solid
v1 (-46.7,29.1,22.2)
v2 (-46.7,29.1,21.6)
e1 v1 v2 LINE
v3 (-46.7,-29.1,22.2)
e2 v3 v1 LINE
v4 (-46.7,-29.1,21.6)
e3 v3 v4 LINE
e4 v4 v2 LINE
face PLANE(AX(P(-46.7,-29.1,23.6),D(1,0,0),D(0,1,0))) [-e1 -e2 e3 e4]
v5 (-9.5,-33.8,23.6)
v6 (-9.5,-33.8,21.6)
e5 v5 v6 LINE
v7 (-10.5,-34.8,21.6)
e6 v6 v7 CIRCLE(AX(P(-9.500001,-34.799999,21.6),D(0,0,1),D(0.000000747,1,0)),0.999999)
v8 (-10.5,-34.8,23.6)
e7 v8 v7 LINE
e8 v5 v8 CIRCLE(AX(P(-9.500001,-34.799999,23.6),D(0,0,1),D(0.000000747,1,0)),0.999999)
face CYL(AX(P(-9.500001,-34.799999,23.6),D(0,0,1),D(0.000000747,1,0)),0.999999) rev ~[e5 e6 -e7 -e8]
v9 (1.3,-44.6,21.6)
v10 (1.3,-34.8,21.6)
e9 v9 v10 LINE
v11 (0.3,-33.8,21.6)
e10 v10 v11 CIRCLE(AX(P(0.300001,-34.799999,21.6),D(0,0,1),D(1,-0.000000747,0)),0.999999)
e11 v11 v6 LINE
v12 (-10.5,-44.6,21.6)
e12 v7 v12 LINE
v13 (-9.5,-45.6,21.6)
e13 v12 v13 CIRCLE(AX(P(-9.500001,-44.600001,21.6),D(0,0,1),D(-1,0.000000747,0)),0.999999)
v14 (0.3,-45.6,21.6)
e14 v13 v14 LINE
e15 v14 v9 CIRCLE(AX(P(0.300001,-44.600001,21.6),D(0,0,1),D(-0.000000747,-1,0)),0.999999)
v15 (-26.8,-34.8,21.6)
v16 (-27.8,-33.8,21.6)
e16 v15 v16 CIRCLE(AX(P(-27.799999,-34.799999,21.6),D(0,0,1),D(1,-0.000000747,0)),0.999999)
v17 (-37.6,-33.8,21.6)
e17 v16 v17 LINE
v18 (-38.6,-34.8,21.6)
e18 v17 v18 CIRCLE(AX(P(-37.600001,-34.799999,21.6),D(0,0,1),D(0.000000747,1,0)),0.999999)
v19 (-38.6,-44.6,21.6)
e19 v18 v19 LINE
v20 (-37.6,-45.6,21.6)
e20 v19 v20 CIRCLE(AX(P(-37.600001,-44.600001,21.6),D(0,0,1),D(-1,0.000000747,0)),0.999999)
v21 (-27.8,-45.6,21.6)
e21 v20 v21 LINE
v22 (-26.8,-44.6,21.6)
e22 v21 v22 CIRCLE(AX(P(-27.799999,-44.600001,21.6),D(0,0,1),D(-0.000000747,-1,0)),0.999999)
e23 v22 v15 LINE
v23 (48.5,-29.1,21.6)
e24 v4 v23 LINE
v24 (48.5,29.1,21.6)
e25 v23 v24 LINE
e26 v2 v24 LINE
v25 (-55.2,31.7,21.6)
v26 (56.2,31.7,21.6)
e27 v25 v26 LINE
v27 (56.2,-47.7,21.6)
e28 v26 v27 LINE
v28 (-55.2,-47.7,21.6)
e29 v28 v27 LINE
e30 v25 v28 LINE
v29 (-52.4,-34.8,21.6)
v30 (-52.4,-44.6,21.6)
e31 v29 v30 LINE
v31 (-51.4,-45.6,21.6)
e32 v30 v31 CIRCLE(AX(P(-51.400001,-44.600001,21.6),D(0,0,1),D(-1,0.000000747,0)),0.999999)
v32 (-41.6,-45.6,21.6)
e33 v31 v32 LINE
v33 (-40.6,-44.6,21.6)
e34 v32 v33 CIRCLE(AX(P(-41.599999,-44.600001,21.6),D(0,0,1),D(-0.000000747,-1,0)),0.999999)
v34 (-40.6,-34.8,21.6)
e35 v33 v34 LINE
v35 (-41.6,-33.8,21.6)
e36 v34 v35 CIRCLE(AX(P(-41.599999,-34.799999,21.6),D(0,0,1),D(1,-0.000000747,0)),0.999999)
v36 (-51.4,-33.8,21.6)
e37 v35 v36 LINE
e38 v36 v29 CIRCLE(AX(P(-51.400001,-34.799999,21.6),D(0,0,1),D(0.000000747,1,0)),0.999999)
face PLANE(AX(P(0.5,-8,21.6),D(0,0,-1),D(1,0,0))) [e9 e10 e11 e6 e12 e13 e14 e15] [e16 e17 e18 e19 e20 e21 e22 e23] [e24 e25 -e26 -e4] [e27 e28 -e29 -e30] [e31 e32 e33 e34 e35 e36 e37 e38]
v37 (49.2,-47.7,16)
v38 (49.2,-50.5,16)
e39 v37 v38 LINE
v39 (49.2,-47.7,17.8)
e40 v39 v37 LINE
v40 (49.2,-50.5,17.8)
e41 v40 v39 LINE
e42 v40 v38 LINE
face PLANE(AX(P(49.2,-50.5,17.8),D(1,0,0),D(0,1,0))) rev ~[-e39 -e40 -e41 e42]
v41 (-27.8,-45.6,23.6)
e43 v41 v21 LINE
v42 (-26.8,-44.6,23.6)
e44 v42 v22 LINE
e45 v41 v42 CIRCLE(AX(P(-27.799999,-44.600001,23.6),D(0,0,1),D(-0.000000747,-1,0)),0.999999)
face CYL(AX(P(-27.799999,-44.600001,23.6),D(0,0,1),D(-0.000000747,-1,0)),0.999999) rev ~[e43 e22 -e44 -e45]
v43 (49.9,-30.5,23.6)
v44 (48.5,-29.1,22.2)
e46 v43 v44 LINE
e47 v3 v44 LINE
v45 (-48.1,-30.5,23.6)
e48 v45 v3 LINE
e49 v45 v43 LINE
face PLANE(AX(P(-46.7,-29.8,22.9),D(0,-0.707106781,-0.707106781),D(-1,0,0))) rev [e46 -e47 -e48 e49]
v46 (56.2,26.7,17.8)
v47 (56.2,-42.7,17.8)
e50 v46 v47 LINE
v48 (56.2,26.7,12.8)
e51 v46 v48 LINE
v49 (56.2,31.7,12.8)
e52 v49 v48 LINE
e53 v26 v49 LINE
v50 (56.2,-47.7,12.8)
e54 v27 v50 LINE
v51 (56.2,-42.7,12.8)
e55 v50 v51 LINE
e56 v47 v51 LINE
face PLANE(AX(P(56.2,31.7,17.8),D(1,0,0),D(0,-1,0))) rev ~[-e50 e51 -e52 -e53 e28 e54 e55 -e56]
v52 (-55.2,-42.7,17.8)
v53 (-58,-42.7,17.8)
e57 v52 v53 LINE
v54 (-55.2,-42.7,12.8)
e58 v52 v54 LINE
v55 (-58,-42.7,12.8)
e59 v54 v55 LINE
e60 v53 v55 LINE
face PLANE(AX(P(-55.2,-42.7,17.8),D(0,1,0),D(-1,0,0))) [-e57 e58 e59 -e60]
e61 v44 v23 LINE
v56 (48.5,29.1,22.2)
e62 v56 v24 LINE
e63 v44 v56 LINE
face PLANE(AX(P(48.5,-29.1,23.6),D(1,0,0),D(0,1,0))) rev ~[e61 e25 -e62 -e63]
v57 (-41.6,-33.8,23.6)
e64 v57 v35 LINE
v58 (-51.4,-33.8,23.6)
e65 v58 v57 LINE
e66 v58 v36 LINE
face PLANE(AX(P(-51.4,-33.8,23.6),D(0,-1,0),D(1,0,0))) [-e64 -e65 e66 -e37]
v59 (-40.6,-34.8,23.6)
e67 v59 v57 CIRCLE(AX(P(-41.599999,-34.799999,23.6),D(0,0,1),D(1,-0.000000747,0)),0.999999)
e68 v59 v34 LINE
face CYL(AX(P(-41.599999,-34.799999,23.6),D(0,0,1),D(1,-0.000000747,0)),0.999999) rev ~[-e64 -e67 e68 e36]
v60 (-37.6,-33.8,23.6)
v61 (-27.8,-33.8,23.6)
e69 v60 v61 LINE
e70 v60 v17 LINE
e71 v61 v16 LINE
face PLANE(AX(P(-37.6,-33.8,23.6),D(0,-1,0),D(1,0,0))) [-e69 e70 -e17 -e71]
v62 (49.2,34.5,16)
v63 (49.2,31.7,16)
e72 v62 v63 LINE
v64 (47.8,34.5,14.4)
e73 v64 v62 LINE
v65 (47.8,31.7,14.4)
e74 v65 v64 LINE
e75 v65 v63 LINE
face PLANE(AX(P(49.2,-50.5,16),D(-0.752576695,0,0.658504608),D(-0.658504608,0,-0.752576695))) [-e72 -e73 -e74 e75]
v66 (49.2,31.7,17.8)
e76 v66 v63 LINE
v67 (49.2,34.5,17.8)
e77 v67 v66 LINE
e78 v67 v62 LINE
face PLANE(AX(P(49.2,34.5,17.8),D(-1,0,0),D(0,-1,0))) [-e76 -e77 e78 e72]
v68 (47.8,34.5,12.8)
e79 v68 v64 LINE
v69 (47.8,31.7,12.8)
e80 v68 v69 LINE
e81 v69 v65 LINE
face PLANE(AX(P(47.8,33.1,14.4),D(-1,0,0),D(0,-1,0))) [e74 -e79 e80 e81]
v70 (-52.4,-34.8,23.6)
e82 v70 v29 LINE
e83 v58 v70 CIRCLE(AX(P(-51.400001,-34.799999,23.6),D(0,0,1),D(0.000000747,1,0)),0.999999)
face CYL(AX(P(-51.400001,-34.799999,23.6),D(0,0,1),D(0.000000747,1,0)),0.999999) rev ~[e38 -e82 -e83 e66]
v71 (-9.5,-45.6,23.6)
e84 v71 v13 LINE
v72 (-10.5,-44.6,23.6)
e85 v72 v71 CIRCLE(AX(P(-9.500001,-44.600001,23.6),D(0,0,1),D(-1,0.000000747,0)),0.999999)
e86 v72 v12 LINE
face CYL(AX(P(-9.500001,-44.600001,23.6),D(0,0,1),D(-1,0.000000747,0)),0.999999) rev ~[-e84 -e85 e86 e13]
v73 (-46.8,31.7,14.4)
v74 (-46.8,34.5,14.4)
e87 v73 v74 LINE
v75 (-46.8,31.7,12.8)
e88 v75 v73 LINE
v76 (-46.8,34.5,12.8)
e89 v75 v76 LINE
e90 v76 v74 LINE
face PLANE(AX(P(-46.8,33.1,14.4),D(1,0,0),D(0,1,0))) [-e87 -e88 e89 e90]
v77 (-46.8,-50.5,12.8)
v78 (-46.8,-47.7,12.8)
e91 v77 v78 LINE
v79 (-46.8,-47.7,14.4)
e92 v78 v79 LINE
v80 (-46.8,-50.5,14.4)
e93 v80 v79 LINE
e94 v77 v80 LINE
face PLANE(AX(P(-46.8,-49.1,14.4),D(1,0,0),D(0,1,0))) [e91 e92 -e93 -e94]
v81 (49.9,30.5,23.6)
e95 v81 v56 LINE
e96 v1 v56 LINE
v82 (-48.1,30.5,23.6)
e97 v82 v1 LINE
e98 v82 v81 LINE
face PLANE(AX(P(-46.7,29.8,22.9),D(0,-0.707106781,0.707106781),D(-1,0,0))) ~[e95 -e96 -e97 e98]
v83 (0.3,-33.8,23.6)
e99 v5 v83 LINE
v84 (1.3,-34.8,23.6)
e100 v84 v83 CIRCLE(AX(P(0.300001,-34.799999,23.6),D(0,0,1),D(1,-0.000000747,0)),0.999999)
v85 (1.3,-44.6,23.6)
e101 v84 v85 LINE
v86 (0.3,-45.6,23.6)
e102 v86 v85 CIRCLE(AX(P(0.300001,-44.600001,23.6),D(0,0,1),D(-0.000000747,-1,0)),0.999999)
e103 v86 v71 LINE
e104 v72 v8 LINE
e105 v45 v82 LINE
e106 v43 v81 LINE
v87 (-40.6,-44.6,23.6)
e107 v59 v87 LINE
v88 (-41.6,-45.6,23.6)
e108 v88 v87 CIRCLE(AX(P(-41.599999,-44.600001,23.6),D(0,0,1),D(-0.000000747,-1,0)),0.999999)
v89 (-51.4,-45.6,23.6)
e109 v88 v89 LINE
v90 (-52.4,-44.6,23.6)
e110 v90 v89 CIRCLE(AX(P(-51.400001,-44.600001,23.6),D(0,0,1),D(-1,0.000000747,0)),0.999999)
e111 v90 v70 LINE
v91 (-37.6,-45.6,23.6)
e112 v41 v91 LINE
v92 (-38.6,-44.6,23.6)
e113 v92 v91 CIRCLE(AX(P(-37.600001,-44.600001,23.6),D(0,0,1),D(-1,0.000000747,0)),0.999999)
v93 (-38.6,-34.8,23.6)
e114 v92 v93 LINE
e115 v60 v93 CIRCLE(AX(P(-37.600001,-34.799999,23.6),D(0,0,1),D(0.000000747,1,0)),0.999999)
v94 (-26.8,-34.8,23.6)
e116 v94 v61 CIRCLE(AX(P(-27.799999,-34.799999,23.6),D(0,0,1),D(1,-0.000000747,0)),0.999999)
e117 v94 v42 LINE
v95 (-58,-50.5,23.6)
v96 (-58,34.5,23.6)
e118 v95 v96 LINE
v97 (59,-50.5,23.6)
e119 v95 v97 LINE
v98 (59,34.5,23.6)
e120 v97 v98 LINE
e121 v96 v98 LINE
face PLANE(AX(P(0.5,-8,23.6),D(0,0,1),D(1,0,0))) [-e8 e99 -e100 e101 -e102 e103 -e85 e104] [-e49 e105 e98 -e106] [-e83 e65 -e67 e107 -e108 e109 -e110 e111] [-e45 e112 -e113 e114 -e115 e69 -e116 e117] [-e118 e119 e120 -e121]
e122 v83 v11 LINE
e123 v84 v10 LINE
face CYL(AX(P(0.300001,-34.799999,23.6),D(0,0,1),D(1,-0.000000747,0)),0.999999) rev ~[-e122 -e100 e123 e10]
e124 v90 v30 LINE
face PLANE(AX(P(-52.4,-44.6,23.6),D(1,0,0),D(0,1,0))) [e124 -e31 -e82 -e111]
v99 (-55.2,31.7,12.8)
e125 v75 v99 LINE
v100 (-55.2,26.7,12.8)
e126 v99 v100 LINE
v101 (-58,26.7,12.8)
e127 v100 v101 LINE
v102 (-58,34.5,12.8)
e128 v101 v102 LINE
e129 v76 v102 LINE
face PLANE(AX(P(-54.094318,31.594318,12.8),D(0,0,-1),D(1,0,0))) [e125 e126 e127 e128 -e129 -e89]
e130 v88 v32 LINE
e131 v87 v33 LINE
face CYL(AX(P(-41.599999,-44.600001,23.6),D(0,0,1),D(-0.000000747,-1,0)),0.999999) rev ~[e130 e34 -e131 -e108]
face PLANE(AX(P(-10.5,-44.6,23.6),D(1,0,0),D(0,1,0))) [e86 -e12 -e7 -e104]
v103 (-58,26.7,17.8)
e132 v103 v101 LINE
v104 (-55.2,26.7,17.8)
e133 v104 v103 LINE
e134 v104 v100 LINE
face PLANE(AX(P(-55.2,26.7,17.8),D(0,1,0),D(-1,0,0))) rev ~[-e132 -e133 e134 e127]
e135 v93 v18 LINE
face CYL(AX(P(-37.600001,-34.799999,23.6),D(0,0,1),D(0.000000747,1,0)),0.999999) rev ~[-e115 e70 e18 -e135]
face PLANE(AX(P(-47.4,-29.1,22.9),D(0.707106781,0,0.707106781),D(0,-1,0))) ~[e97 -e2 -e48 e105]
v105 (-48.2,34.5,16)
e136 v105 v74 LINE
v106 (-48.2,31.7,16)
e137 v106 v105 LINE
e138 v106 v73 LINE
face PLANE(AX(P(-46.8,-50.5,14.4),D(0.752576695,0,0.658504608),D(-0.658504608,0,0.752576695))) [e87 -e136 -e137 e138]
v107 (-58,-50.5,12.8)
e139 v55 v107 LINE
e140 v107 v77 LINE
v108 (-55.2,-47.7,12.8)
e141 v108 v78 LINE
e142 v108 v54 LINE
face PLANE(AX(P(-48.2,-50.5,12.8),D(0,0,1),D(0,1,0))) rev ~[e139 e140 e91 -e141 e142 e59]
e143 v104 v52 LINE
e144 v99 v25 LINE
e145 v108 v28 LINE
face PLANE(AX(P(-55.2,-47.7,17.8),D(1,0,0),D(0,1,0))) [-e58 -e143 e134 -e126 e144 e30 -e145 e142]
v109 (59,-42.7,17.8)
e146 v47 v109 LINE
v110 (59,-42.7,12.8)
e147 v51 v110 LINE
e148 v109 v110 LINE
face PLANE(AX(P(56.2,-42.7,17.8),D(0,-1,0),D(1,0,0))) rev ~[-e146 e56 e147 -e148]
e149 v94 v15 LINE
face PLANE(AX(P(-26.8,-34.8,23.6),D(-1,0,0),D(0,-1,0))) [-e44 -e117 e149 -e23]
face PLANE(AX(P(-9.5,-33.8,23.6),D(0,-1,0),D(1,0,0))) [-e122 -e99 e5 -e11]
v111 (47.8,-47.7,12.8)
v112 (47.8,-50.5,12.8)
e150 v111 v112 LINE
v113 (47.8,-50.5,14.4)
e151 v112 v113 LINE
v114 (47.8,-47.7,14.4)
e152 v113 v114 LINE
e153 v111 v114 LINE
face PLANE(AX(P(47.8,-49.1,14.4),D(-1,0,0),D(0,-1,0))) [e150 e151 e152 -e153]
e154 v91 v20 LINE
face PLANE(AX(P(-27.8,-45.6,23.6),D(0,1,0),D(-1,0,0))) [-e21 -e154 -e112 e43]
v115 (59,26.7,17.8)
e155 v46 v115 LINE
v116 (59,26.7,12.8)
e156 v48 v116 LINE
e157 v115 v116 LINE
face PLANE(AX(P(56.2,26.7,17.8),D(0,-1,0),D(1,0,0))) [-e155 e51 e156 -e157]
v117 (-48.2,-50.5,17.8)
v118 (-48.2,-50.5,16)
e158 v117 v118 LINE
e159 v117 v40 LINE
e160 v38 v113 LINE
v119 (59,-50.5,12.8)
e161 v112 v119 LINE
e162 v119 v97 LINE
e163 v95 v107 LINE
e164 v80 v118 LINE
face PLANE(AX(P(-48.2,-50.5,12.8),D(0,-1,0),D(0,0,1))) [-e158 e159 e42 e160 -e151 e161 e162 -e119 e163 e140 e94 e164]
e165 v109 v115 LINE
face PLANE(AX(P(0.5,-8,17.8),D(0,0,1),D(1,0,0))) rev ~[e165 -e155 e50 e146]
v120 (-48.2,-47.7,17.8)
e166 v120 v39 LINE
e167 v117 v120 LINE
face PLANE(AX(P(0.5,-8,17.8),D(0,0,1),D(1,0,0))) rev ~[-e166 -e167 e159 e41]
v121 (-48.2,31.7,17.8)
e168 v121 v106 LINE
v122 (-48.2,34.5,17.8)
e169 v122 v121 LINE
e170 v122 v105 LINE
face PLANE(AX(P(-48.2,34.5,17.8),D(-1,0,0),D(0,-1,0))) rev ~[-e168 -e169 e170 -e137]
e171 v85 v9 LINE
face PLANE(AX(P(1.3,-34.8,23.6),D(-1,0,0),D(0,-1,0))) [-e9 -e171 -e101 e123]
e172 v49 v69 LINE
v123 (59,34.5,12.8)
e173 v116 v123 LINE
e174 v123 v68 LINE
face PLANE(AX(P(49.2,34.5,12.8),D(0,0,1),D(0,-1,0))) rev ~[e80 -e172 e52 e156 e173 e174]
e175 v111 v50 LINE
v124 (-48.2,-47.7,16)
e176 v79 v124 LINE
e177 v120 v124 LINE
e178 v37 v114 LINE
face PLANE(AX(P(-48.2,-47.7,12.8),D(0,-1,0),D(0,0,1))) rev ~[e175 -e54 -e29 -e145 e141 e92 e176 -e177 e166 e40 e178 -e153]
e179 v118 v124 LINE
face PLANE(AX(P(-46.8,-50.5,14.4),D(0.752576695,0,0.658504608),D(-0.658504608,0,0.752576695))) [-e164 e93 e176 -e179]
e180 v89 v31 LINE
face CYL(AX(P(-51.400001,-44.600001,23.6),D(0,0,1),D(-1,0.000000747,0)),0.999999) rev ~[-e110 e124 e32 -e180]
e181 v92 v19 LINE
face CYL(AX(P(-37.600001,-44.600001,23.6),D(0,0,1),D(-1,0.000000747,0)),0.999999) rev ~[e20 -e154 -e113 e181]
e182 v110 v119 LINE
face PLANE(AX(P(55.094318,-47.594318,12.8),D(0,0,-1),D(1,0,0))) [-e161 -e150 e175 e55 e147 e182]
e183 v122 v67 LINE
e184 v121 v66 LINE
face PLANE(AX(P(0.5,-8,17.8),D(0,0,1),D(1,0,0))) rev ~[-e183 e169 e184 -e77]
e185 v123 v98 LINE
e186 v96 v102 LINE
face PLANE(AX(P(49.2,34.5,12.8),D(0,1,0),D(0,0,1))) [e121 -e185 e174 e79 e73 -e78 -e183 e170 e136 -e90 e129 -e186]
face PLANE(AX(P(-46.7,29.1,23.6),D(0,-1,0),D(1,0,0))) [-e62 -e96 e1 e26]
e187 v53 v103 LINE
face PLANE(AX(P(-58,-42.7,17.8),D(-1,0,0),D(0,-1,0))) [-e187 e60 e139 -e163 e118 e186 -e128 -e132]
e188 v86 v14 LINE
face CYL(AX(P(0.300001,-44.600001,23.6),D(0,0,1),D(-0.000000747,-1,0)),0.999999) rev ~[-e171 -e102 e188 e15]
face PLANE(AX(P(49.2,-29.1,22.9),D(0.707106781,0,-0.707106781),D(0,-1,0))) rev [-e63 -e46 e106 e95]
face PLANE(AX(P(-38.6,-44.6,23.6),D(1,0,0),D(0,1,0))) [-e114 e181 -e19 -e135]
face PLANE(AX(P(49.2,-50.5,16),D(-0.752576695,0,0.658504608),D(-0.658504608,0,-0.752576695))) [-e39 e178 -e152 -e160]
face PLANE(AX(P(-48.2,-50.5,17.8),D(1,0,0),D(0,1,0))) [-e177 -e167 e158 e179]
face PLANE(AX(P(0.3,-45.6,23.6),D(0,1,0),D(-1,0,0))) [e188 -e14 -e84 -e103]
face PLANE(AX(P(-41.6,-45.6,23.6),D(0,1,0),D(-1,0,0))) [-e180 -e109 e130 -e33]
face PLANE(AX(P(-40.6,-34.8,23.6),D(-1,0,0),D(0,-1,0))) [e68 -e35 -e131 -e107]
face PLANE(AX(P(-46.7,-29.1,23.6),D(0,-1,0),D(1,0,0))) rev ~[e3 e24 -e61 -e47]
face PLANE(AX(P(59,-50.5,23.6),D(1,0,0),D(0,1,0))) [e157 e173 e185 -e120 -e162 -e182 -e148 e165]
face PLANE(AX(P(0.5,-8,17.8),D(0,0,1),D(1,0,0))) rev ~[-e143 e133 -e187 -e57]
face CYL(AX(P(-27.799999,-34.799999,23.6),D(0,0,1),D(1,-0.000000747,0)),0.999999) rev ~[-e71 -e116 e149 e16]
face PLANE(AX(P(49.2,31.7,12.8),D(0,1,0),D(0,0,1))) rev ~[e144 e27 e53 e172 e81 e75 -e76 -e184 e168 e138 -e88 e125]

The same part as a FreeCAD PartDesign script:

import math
import FreeCAD as App
import Part
import Sketcher

V = App.Vector
Q = App.Units.Quantity


def edges_at(feature, points):
    """Names of the edges that pass closest to the given points."""
    edges = feature.Shape.Edges
    near = lambda p: min(range(len(edges)), key=lambda i: edges[i].distToShape(Part.Vertex(*p))[0])
    return sorted({f"Edge{near(p) + 1}" for p in points})

doc = App.newDocument("Part")
body = doc.addObject("PartDesign::Body", "Body")

# Sketch on XY plane
sketch1 = doc.addObject("Sketcher::SketchObject", "Sketch")
body.addObject(sketch1)
sketch1.AttachmentSupport = (doc.XY_Plane, [""])
sketch1.MapMode = "FlatFace"
sketch1.AttachmentOffset = App.Placement(V(0, 0, 23.6), App.Rotation())
sketch1.addGeometry(Part.LineSegment(V(-58, 34, 0), V(-58, -50, 0)), False)
sketch1.addGeometry(Part.LineSegment(V(-58, -50, 0), V(59, -50, 0)), False)
sketch1.addGeometry(Part.LineSegment(V(59, -50, 0), V(59, 34, 0)), False)
sketch1.addGeometry(Part.LineSegment(V(59, 34, 0), V(-58, 34, 0)), False)
sketch1.addConstraint(Sketcher.Constraint("Coincident", 0, 2, 1, 1))
sketch1.addConstraint(Sketcher.Constraint("Coincident", 1, 2, 2, 1))
sketch1.addConstraint(Sketcher.Constraint("Coincident", 2, 2, 3, 1))
sketch1.addConstraint(Sketcher.Constraint("Coincident", 3, 2, 0, 1))
sketch1.addConstraint(Sketcher.Constraint("Vertical", 0))
sketch1.addConstraint(Sketcher.Constraint("Horizontal", 1))
sketch1.addConstraint(Sketcher.Constraint("Vertical", 2))
sketch1.addConstraint(Sketcher.Constraint("Horizontal", 3))
sketch1.addConstraint(Sketcher.Constraint("DistanceX", 1, 1, 1, 2, Q("117 mm")))
sketch1.addConstraint(Sketcher.Constraint("DistanceY", 0, 2, 0, 1, Q("85 mm")))
sketch1.addConstraint(Sketcher.Constraint("DistanceX", 0, 2, -1, 1, Q("58 mm")))
sketch1.addConstraint(Sketcher.Constraint("DistanceY", 0, 2, -1, 1, Q("50.5 mm")))
pad1 = doc.addObject("PartDesign::Pad", "Pad")
body.addObject(pad1)
pad1.Profile = sketch1
pad1.Length = 5.8
pad1.Reversed = True

# Sketch on XY plane
sketch2 = doc.addObject("Sketcher::SketchObject", "Sketch001")
body.addObject(sketch2)
sketch2.AttachmentSupport = (doc.XY_Plane, [""])
sketch2.MapMode = "FlatFace"
sketch2.AttachmentOffset = App.Placement(V(0, 0, 23.6), App.Rotation())
sketch2.addGeometry(Part.LineSegment(V(-47, 29, 0), V(-47, -29, 0)), False)
sketch2.addGeometry(Part.LineSegment(V(-47, -29, 0), V(48, -29, 0)), False)
sketch2.addGeometry(Part.LineSegment(V(48, -29, 0), V(48, 29, 0)), False)
sketch2.addGeometry(Part.LineSegment(V(48, 29, 0), V(-47, 29, 0)), False)
sketch2.addConstraint(Sketcher.Constraint("Coincident", 0, 2, 1, 1))
sketch2.addConstraint(Sketcher.Constraint("Coincident", 1, 2, 2, 1))
sketch2.addConstraint(Sketcher.Constraint("Coincident", 2, 2, 3, 1))
sketch2.addConstraint(Sketcher.Constraint("Coincident", 3, 2, 0, 1))
sketch2.addConstraint(Sketcher.Constraint("Vertical", 0))
sketch2.addConstraint(Sketcher.Constraint("Horizontal", 1))
sketch2.addConstraint(Sketcher.Constraint("Vertical", 2))
sketch2.addConstraint(Sketcher.Constraint("Horizontal", 3))
sketch2.addConstraint(Sketcher.Constraint("DistanceX", 1, 1, 1, 2, Q("95.2 mm")))
sketch2.addConstraint(Sketcher.Constraint("DistanceY", 0, 2, 0, 1, Q("58.2 mm")))
sketch2.addConstraint(Sketcher.Constraint("DistanceX", 0, 2, -1, 1, Q("46.7 mm")))
sketch2.addConstraint(Sketcher.Constraint("DistanceY", 0, 2, -1, 1, Q("29.1 mm")))
pocket1 = doc.addObject("PartDesign::Pocket", "Pocket")
body.addObject(pocket1)
pocket1.Profile = sketch2
pocket1.Type = "ThroughAll"

# Sketch on XY plane
sketch3 = doc.addObject("Sketcher::SketchObject", "Sketch002")
body.addObject(sketch3)
sketch3.AttachmentSupport = (doc.XY_Plane, [""])
sketch3.MapMode = "FlatFace"
sketch3.AttachmentOffset = App.Placement(V(0, 0, 17.8), App.Rotation())
sketch3.addGeometry(Part.LineSegment(V(-55, -48, 0), V(-55, 32, 0)), False)
sketch3.addGeometry(Part.LineSegment(V(-55, 32, 0), V(56, 32, 0)), False)
sketch3.addGeometry(Part.LineSegment(V(56, 32, 0), V(56, -48, 0)), False)
sketch3.addGeometry(Part.LineSegment(V(56, -48, 0), V(-55, -48, 0)), False)
sketch3.addConstraint(Sketcher.Constraint("Coincident", 0, 2, 1, 1))
sketch3.addConstraint(Sketcher.Constraint("Coincident", 1, 2, 2, 1))
sketch3.addConstraint(Sketcher.Constraint("Coincident", 2, 2, 3, 1))
sketch3.addConstraint(Sketcher.Constraint("Coincident", 3, 2, 0, 1))
sketch3.addConstraint(Sketcher.Constraint("Vertical", 0))
sketch3.addConstraint(Sketcher.Constraint("Horizontal", 1))
sketch3.addConstraint(Sketcher.Constraint("Vertical", 2))
sketch3.addConstraint(Sketcher.Constraint("Horizontal", 3))
sketch3.addConstraint(Sketcher.Constraint("DistanceX", 1, 1, 1, 2, Q("111.4 mm")))
sketch3.addConstraint(Sketcher.Constraint("DistanceY", 0, 1, 0, 2, Q("79.4 mm")))
sketch3.addConstraint(Sketcher.Constraint("DistanceX", 0, 2, -1, 1, Q("55.2 mm")))
sketch3.addConstraint(Sketcher.Constraint("DistanceY", -1, 1, 0, 2, Q("31.7 mm")))
pocket2 = doc.addObject("PartDesign::Pocket", "Pocket001")
body.addObject(pocket2)
pocket2.Profile = sketch3
pocket2.Length = 3.8
pocket2.Reversed = True

# Sketch on XY plane
sketch4 = doc.addObject("Sketcher::SketchObject", "Sketch003")
body.addObject(sketch4)
sketch4.AttachmentSupport = (doc.XY_Plane, [""])
sketch4.MapMode = "FlatFace"
sketch4.AttachmentOffset = App.Placement(V(0, 0, 23.6), App.Rotation())
sketch4.addGeometry(Part.LineSegment(V(-41.6, -33.8, 0), V(-51.4, -33.8, 0)), False)
sketch4.addGeometry(Part.ArcOfCircle(Part.Circle(V(-51.4, -34.8, 0), V(0, 0, 1), 1), math.radians(90), math.radians(180)), False)
sketch4.addGeometry(Part.LineSegment(V(-52.4, -34.8, 0), V(-52.4, -44.6, 0)), False)
sketch4.addGeometry(Part.ArcOfCircle(Part.Circle(V(-51.4, -44.6, 0), V(0, 0, 1), 1), math.radians(180), math.radians(270)), False)
sketch4.addGeometry(Part.LineSegment(V(-51.4, -45.6, 0), V(-41.6, -45.6, 0)), False)
sketch4.addGeometry(Part.ArcOfCircle(Part.Circle(V(-41.6, -44.6, 0), V(0, 0, 1), 1), math.radians(-90), math.radians(0)), False)
sketch4.addGeometry(Part.LineSegment(V(-40.6, -44.6, 0), V(-40.6, -34.8, 0)), False)
sketch4.addGeometry(Part.ArcOfCircle(Part.Circle(V(-41.6, -34.8, 0), V(0, 0, 1), 1), math.radians(0), math.radians(90)), False)
sketch4.addGeometry(Part.LineSegment(V(-27.8, -33.8, 0), V(-37.6, -33.8, 0)), False)
sketch4.addGeometry(Part.ArcOfCircle(Part.Circle(V(-37.6, -34.8, 0), V(0, 0, 1), 1), math.radians(90), math.radians(180)), False)
sketch4.addGeometry(Part.LineSegment(V(-38.6, -34.8, 0), V(-38.6, -44.6, 0)), False)
sketch4.addGeometry(Part.ArcOfCircle(Part.Circle(V(-37.6, -44.6, 0), V(0, 0, 1), 1), math.radians(180), math.radians(270)), False)
sketch4.addGeometry(Part.LineSegment(V(-37.6, -45.6, 0), V(-27.8, -45.6, 0)), False)
sketch4.addGeometry(Part.ArcOfCircle(Part.Circle(V(-27.8, -44.6, 0), V(0, 0, 1), 1), math.radians(-90), math.radians(0)), False)
sketch4.addGeometry(Part.LineSegment(V(-26.8, -44.6, 0), V(-26.8, -34.8, 0)), False)
sketch4.addGeometry(Part.ArcOfCircle(Part.Circle(V(-27.8, -34.8, 0), V(0, 0, 1), 1), math.radians(0), math.radians(90)), False)
sketch4.addGeometry(Part.LineSegment(V(0.3, -33.8, 0), V(-9.5, -33.8, 0)), False)
sketch4.addGeometry(Part.ArcOfCircle(Part.Circle(V(-9.5, -34.8, 0), V(0, 0, 1), 1), math.radians(90), math.radians(180)), False)
sketch4.addGeometry(Part.LineSegment(V(-10.5, -34.8, 0), V(-10.5, -44.6, 0)), False)
sketch4.addGeometry(Part.ArcOfCircle(Part.Circle(V(-9.5, -44.6, 0), V(0, 0, 1), 1), math.radians(180), math.radians(270)), False)
sketch4.addGeometry(Part.LineSegment(V(-9.5, -45.6, 0), V(0.3, -45.6, 0)), False)
sketch4.addGeometry(Part.ArcOfCircle(Part.Circle(V(0.3, -44.6, 0), V(0, 0, 1), 1), math.radians(-90), math.radians(0)), False)
sketch4.addGeometry(Part.LineSegment(V(1.3, -44.6, 0), V(1.3, -34.8, 0)), False)
sketch4.addGeometry(Part.ArcOfCircle(Part.Circle(V(0.3, -34.8, 0), V(0, 0, 1), 1), math.radians(0), math.radians(90)), False)
sketch4.addConstraint(Sketcher.Constraint("Tangent", 0, 2, 1, 1))
sketch4.addConstraint(Sketcher.Constraint("Tangent", 1, 2, 2, 1))
sketch4.addConstraint(Sketcher.Constraint("Tangent", 2, 2, 3, 1))
sketch4.addConstraint(Sketcher.Constraint("Tangent", 3, 2, 4, 1))
sketch4.addConstraint(Sketcher.Constraint("Tangent", 4, 2, 5, 1))
sketch4.addConstraint(Sketcher.Constraint("Tangent", 5, 2, 6, 1))
sketch4.addConstraint(Sketcher.Constraint("Tangent", 6, 2, 7, 1))
sketch4.addConstraint(Sketcher.Constraint("Tangent", 7, 2, 0, 1))
sketch4.addConstraint(Sketcher.Constraint("Tangent", 8, 2, 9, 1))
sketch4.addConstraint(Sketcher.Constraint("Tangent", 9, 2, 10, 1))
sketch4.addConstraint(Sketcher.Constraint("Tangent", 10, 2, 11, 1))
sketch4.addConstraint(Sketcher.Constraint("Tangent", 11, 2, 12, 1))
sketch4.addConstraint(Sketcher.Constraint("Tangent", 12, 2, 13, 1))
sketch4.addConstraint(Sketcher.Constraint("Tangent", 13, 2, 14, 1))
sketch4.addConstraint(Sketcher.Constraint("Tangent", 14, 2, 15, 1))
sketch4.addConstraint(Sketcher.Constraint("Tangent", 15, 2, 8, 1))
sketch4.addConstraint(Sketcher.Constraint("Tangent", 16, 2, 17, 1))
sketch4.addConstraint(Sketcher.Constraint("Tangent", 17, 2, 18, 1))
sketch4.addConstraint(Sketcher.Constraint("Tangent", 18, 2, 19, 1))
sketch4.addConstraint(Sketcher.Constraint("Tangent", 19, 2, 20, 1))
sketch4.addConstraint(Sketcher.Constraint("Tangent", 20, 2, 21, 1))
sketch4.addConstraint(Sketcher.Constraint("Tangent", 21, 2, 22, 1))
sketch4.addConstraint(Sketcher.Constraint("Tangent", 22, 2, 23, 1))
sketch4.addConstraint(Sketcher.Constraint("Tangent", 23, 2, 16, 1))
sketch4.addConstraint(Sketcher.Constraint("Horizontal", 0))
sketch4.addConstraint(Sketcher.Constraint("Vertical", 2))
sketch4.addConstraint(Sketcher.Constraint("Horizontal", 4))
sketch4.addConstraint(Sketcher.Constraint("Vertical", 6))
sketch4.addConstraint(Sketcher.Constraint("Horizontal", 8))
sketch4.addConstraint(Sketcher.Constraint("Vertical", 10))
sketch4.addConstraint(Sketcher.Constraint("Horizontal", 12))
sketch4.addConstraint(Sketcher.Constraint("Vertical", 14))
sketch4.addConstraint(Sketcher.Constraint("Horizontal", 16))
sketch4.addConstraint(Sketcher.Constraint("Vertical", 18))
sketch4.addConstraint(Sketcher.Constraint("Horizontal", 20))
sketch4.addConstraint(Sketcher.Constraint("Vertical", 22))
sketch4.addConstraint(Sketcher.Constraint("Equal", 1, 3))
sketch4.addConstraint(Sketcher.Constraint("Equal", 3, 5))
sketch4.addConstraint(Sketcher.Constraint("Equal", 5, 7))
sketch4.addConstraint(Sketcher.Constraint("Equal", 7, 9))
sketch4.addConstraint(Sketcher.Constraint("Equal", 9, 11))
sketch4.addConstraint(Sketcher.Constraint("Equal", 11, 13))
sketch4.addConstraint(Sketcher.Constraint("Equal", 13, 15))
sketch4.addConstraint(Sketcher.Constraint("Equal", 15, 17))
sketch4.addConstraint(Sketcher.Constraint("Equal", 17, 19))
sketch4.addConstraint(Sketcher.Constraint("Equal", 19, 21))
sketch4.addConstraint(Sketcher.Constraint("Equal", 21, 23))
sketch4.addConstraint(Sketcher.Constraint("Horizontal", 7, 3, 9, 3))
sketch4.addConstraint(Sketcher.Constraint("Horizontal", 5, 3, 11, 3))
sketch4.addConstraint(Sketcher.Constraint("Horizontal", 15, 3, 17, 3))
sketch4.addConstraint(Sketcher.Constraint("Horizontal", 13, 3, 19, 3))
sketch4.addConstraint(Sketcher.Constraint("Equal", 4, 8))
sketch4.addConstraint(Sketcher.Constraint("Equal", 12, 16))
sketch4.addConstraint(Sketcher.Constraint("Equal", 20, 2))
sketch4.addConstraint(Sketcher.Constraint("Radius", 1, Q("0.999999 mm")))
sketch4.addConstraint(Sketcher.Constraint("DistanceX", 0, 2, 0, 1, Q("9.8 mm")))
sketch4.addConstraint(Sketcher.Constraint("DistanceX", 7, 3, 9, 3, Q("3.999999 mm")))
sketch4.addConstraint(Sketcher.Constraint("DistanceX", 1, 3, -1, 1, Q("51.400001 mm")))
sketch4.addConstraint(Sketcher.Constraint("DistanceY", 1, 3, -1, 1, Q("34.799999 mm")))
sketch4.addConstraint(Sketcher.Constraint("DistanceX", 17, 3, -1, 1, Q("9.500001 mm")))
pocket3 = doc.addObject("PartDesign::Pocket", "Pocket002")
body.addObject(pocket3)
pocket3.Profile = sketch4
pocket3.Type = "ThroughAll"

# Sketch on XY plane
sketch5 = doc.addObject("Sketcher::SketchObject", "Sketch004")
body.addObject(sketch5)
sketch5.AttachmentSupport = (doc.XY_Plane, [""])
sketch5.MapMode = "FlatFace"
sketch5.AttachmentOffset = App.Placement(V(0, 0, 17.8), App.Rotation())
sketch5.addGeometry(Part.LineSegment(V(-48.2, -50.5, 0), V(-58, -50.5, 0)), False)
sketch5.addGeometry(Part.LineSegment(V(-58, -50.5, 0), V(-58, -42.7, 0)), False)
sketch5.addGeometry(Part.LineSegment(V(-58, -42.7, 0), V(-55.2, -42.7, 0)), False)
sketch5.addGeometry(Part.LineSegment(V(-55.2, -42.7, 0), V(-55.2, -47.7, 0)), False)
sketch5.addGeometry(Part.LineSegment(V(-55.2, -47.7, 0), V(-48.2, -47.7, 0)), False)
sketch5.addGeometry(Part.LineSegment(V(-48.2, -47.7, 0), V(-48.2, -50.5, 0)), False)
sketch5.addGeometry(Part.LineSegment(V(59, -50.5, 0), V(49.2, -50.5, 0)), False)
sketch5.addGeometry(Part.LineSegment(V(49.2, -50.5, 0), V(49.2, -47.7, 0)), False)
sketch5.addGeometry(Part.LineSegment(V(49.2, -47.7, 0), V(56.2, -47.7, 0)), False)
sketch5.addGeometry(Part.LineSegment(V(56.2, -47.7, 0), V(56.2, -42.7, 0)), False)
sketch5.addGeometry(Part.LineSegment(V(56.2, -42.7, 0), V(59, -42.7, 0)), False)
sketch5.addGeometry(Part.LineSegment(V(59, -42.7, 0), V(59, -50.5, 0)), False)
sketch5.addGeometry(Part.LineSegment(V(49.2, 34.5, 0), V(59, 34.5, 0)), False)
sketch5.addGeometry(Part.LineSegment(V(59, 34.5, 0), V(59, 26.7, 0)), False)
sketch5.addGeometry(Part.LineSegment(V(59, 26.7, 0), V(56.2, 26.7, 0)), False)
sketch5.addGeometry(Part.LineSegment(V(56.2, 26.7, 0), V(56.2, 31.7, 0)), False)
sketch5.addGeometry(Part.LineSegment(V(56.2, 31.7, 0), V(49.2, 31.7, 0)), False)
sketch5.addGeometry(Part.LineSegment(V(49.2, 31.7, 0), V(49.2, 34.5, 0)), False)
sketch5.addGeometry(Part.LineSegment(V(-58, 34.5, 0), V(-48.2, 34.5, 0)), False)
sketch5.addGeometry(Part.LineSegment(V(-48.2, 34.5, 0), V(-48.2, 31.7, 0)), False)
sketch5.addGeometry(Part.LineSegment(V(-48.2, 31.7, 0), V(-55.2, 31.7, 0)), False)
sketch5.addGeometry(Part.LineSegment(V(-55.2, 31.7, 0), V(-55.2, 26.7, 0)), False)
sketch5.addGeometry(Part.LineSegment(V(-55.2, 26.7, 0), V(-58, 26.7, 0)), False)
sketch5.addGeometry(Part.LineSegment(V(-58, 26.7, 0), V(-58, 34.5, 0)), False)
sketch5.addConstraint(Sketcher.Constraint("Coincident", 0, 2, 1, 1))
sketch5.addConstraint(Sketcher.Constraint("Coincident", 1, 2, 2, 1))
sketch5.addConstraint(Sketcher.Constraint("Coincident", 2, 2, 3, 1))
sketch5.addConstraint(Sketcher.Constraint("Coincident", 3, 2, 4, 1))
sketch5.addConstraint(Sketcher.Constraint("Coincident", 4, 2, 5, 1))
sketch5.addConstraint(Sketcher.Constraint("Coincident", 5, 2, 0, 1))
sketch5.addConstraint(Sketcher.Constraint("Coincident", 6, 2, 7, 1))
sketch5.addConstraint(Sketcher.Constraint("Coincident", 7, 2, 8, 1))
sketch5.addConstraint(Sketcher.Constraint("Coincident", 8, 2, 9, 1))
sketch5.addConstraint(Sketcher.Constraint("Coincident", 9, 2, 10, 1))
sketch5.addConstraint(Sketcher.Constraint("Coincident", 10, 2, 11, 1))
sketch5.addConstraint(Sketcher.Constraint("Coincident", 11, 2, 6, 1))
sketch5.addConstraint(Sketcher.Constraint("Coincident", 12, 2, 13, 1))
sketch5.addConstraint(Sketcher.Constraint("Coincident", 13, 2, 14, 1))
sketch5.addConstraint(Sketcher.Constraint("Coincident", 14, 2, 15, 1))
sketch5.addConstraint(Sketcher.Constraint("Coincident", 15, 2, 16, 1))
sketch5.addConstraint(Sketcher.Constraint("Coincident", 16, 2, 17, 1))
sketch5.addConstraint(Sketcher.Constraint("Coincident", 17, 2, 12, 1))
sketch5.addConstraint(Sketcher.Constraint("Coincident", 18, 2, 19, 1))
sketch5.addConstraint(Sketcher.Constraint("Coincident", 19, 2, 20, 1))
sketch5.addConstraint(Sketcher.Constraint("Coincident", 20, 2, 21, 1))
sketch5.addConstraint(Sketcher.Constraint("Coincident", 21, 2, 22, 1))
sketch5.addConstraint(Sketcher.Constraint("Coincident", 22, 2, 23, 1))
sketch5.addConstraint(Sketcher.Constraint("Coincident", 23, 2, 18, 1))
sketch5.addConstraint(Sketcher.Constraint("Horizontal", 0))
sketch5.addConstraint(Sketcher.Constraint("Vertical", 1))
sketch5.addConstraint(Sketcher.Constraint("Horizontal", 2))
sketch5.addConstraint(Sketcher.Constraint("Vertical", 3))
sketch5.addConstraint(Sketcher.Constraint("Horizontal", 4))
sketch5.addConstraint(Sketcher.Constraint("Vertical", 5))
sketch5.addConstraint(Sketcher.Constraint("Horizontal", 6))
sketch5.addConstraint(Sketcher.Constraint("Vertical", 7))
sketch5.addConstraint(Sketcher.Constraint("Horizontal", 8))
sketch5.addConstraint(Sketcher.Constraint("Vertical", 9))
sketch5.addConstraint(Sketcher.Constraint("Horizontal", 10))
sketch5.addConstraint(Sketcher.Constraint("Vertical", 11))
sketch5.addConstraint(Sketcher.Constraint("Horizontal", 12))
sketch5.addConstraint(Sketcher.Constraint("Vertical", 13))
sketch5.addConstraint(Sketcher.Constraint("Horizontal", 14))
sketch5.addConstraint(Sketcher.Constraint("Vertical", 15))
sketch5.addConstraint(Sketcher.Constraint("Horizontal", 16))
sketch5.addConstraint(Sketcher.Constraint("Vertical", 17))
sketch5.addConstraint(Sketcher.Constraint("Horizontal", 18))
sketch5.addConstraint(Sketcher.Constraint("Vertical", 19))
sketch5.addConstraint(Sketcher.Constraint("Horizontal", 20))
sketch5.addConstraint(Sketcher.Constraint("Vertical", 21))
sketch5.addConstraint(Sketcher.Constraint("Horizontal", 22))
sketch5.addConstraint(Sketcher.Constraint("Vertical", 23))
sketch5.addConstraint(Sketcher.Constraint("Horizontal", 5, 2, 6, 2))
sketch5.addConstraint(Sketcher.Constraint("Horizontal", 4, 2, 7, 2))
sketch5.addConstraint(Sketcher.Constraint("Horizontal", 2, 2, 9, 2))
sketch5.addConstraint(Sketcher.Constraint("Horizontal", 17, 2, 18, 2))
sketch5.addConstraint(Sketcher.Constraint("Horizontal", 16, 2, 19, 2))
sketch5.addConstraint(Sketcher.Constraint("Horizontal", 14, 2, 21, 2))
sketch5.addConstraint(Sketcher.Constraint("Vertical", 11, 2, 12, 2))
sketch5.addConstraint(Sketcher.Constraint("Vertical", 9, 2, 14, 2))
sketch5.addConstraint(Sketcher.Constraint("Vertical", 7, 2, 16, 2))
sketch5.addConstraint(Sketcher.Constraint("Vertical", 5, 2, 18, 2))
sketch5.addConstraint(Sketcher.Constraint("Vertical", 3, 2, 20, 2))
sketch5.addConstraint(Sketcher.Constraint("Vertical", 1, 2, 22, 2))
sketch5.addConstraint(Sketcher.Constraint("Equal", 0, 6))
sketch5.addConstraint(Sketcher.Constraint("Equal", 4, 8))
sketch5.addConstraint(Sketcher.Constraint("Equal", 22, 5))
sketch5.addConstraint(Sketcher.Constraint("Equal", 11, 13))
sketch5.addConstraint(Sketcher.Constraint("Equal", 9, 15))
sketch5.addConstraint(Sketcher.Constraint("DistanceX", 4, 1, 4, 2, Q("7 mm")))
sketch5.addConstraint(Sketcher.Constraint("DistanceY", 3, 2, 3, 1, Q("5 mm")))
sketch5.addConstraint(Sketcher.Constraint("DistanceX", 0, 2, 0, 1, Q("9.8 mm")))
sketch5.addConstraint(Sketcher.Constraint("DistanceX", 0, 2, -1, 1, Q("58 mm")))
sketch5.addConstraint(Sketcher.Constraint("DistanceX", -1, 1, 10, 2, Q("59 mm")))
sketch5.addConstraint(Sketcher.Constraint("DistanceY", 11, 2, 12, 2, Q("85 mm")))
sketch5.addConstraint(Sketcher.Constraint("DistanceY", 0, 2, -1, 1, Q("50.5 mm")))
pad2 = doc.addObject("PartDesign::Pad", "Pad001")
body.addObject(pad2)
pad2.Profile = sketch5
pad2.Length = 5
pad2.Reversed = True

# Sketch on YZ plane
sketch6 = doc.addObject("Sketcher::SketchObject", "Sketch005")
body.addObject(sketch6)
sketch6.AttachmentSupport = (doc.YZ_Plane, [""])
sketch6.MapMode = "FlatFace"
sketch6.AttachmentOffset = App.Placement(V(0, 0, -48.2), App.Rotation())
sketch6.addGeometry(Part.LineSegment(V(-50.5, 16, 0), V(-50.5, 12.8, 0)), False)
sketch6.addGeometry(Part.LineSegment(V(-50.5, 12.8, 0), V(-47.7, 12.8, 0)), False)
sketch6.addGeometry(Part.LineSegment(V(-47.7, 12.8, 0), V(-47.7, 16, 0)), False)
sketch6.addGeometry(Part.LineSegment(V(-47.7, 16, 0), V(-50.5, 16, 0)), False)
sketch6.addGeometry(Part.LineSegment(V(31.7, 16, 0), V(31.7, 12.8, 0)), False)
sketch6.addGeometry(Part.LineSegment(V(31.7, 12.8, 0), V(34.5, 12.8, 0)), False)
sketch6.addGeometry(Part.LineSegment(V(34.5, 12.8, 0), V(34.5, 16, 0)), False)
sketch6.addGeometry(Part.LineSegment(V(34.5, 16, 0), V(31.7, 16, 0)), False)
sketch6.addConstraint(Sketcher.Constraint("Coincident", 0, 2, 1, 1))
sketch6.addConstraint(Sketcher.Constraint("Coincident", 1, 2, 2, 1))
sketch6.addConstraint(Sketcher.Constraint("Coincident", 2, 2, 3, 1))
sketch6.addConstraint(Sketcher.Constraint("Coincident", 3, 2, 0, 1))
sketch6.addConstraint(Sketcher.Constraint("Coincident", 4, 2, 5, 1))
sketch6.addConstraint(Sketcher.Constraint("Coincident", 5, 2, 6, 1))
sketch6.addConstraint(Sketcher.Constraint("Coincident", 6, 2, 7, 1))
sketch6.addConstraint(Sketcher.Constraint("Coincident", 7, 2, 4, 1))
sketch6.addConstraint(Sketcher.Constraint("Vertical", 0))
sketch6.addConstraint(Sketcher.Constraint("Horizontal", 1))
sketch6.addConstraint(Sketcher.Constraint("Vertical", 2))
sketch6.addConstraint(Sketcher.Constraint("Horizontal", 3))
sketch6.addConstraint(Sketcher.Constraint("Vertical", 4))
sketch6.addConstraint(Sketcher.Constraint("Horizontal", 5))
sketch6.addConstraint(Sketcher.Constraint("Vertical", 6))
sketch6.addConstraint(Sketcher.Constraint("Horizontal", 7))
sketch6.addConstraint(Sketcher.Constraint("Horizontal", 1, 2, 4, 2))
sketch6.addConstraint(Sketcher.Constraint("Horizontal", 3, 2, 6, 2))
sketch6.addConstraint(Sketcher.Constraint("Equal", 3, 5))
sketch6.addConstraint(Sketcher.Constraint("DistanceX", 1, 1, 1, 2, Q("2.8 mm")))
sketch6.addConstraint(Sketcher.Constraint("DistanceY", 0, 2, 0, 1, Q("3.2 mm")))
sketch6.addConstraint(Sketcher.Constraint("DistanceY", -1, 1, 2, 2, Q("16 mm")))
sketch6.addConstraint(Sketcher.Constraint("DistanceX", 0, 2, 5, 2, Q("85 mm")))
sketch6.addConstraint(Sketcher.Constraint("DistanceX", 0, 2, -1, 1, Q("50.5 mm")))
pad3 = doc.addObject("PartDesign::Pad", "Pad002")
body.addObject(pad3)
pad3.Profile = sketch6
pad3.Length = 1.4

# Sketch on YZ plane
sketch7 = doc.addObject("Sketcher::SketchObject", "Sketch006")
body.addObject(sketch7)
sketch7.AttachmentSupport = (doc.YZ_Plane, [""])
sketch7.MapMode = "FlatFace"
sketch7.AttachmentOffset = App.Placement(V(0, 0, 49.2), App.Rotation())
sketch7.addGeometry(Part.LineSegment(V(34.5, 16, 0), V(34.5, 12.8, 0)), False)
sketch7.addGeometry(Part.LineSegment(V(34.5, 12.8, 0), V(31.7, 12.8, 0)), False)
sketch7.addGeometry(Part.LineSegment(V(31.7, 12.8, 0), V(31.7, 16, 0)), False)
sketch7.addGeometry(Part.LineSegment(V(31.7, 16, 0), V(34.5, 16, 0)), False)
sketch7.addGeometry(Part.LineSegment(V(-47.7, 16, 0), V(-47.7, 12.8, 0)), False)
sketch7.addGeometry(Part.LineSegment(V(-47.7, 12.8, 0), V(-50.5, 12.8, 0)), False)
sketch7.addGeometry(Part.LineSegment(V(-50.5, 12.8, 0), V(-50.5, 16, 0)), False)
sketch7.addGeometry(Part.LineSegment(V(-50.5, 16, 0), V(-47.7, 16, 0)), False)
sketch7.addConstraint(Sketcher.Constraint("Coincident", 0, 2, 1, 1))
sketch7.addConstraint(Sketcher.Constraint("Coincident", 1, 2, 2, 1))
sketch7.addConstraint(Sketcher.Constraint("Coincident", 2, 2, 3, 1))
sketch7.addConstraint(Sketcher.Constraint("Coincident", 3, 2, 0, 1))
sketch7.addConstraint(Sketcher.Constraint("Coincident", 4, 2, 5, 1))
sketch7.addConstraint(Sketcher.Constraint("Coincident", 5, 2, 6, 1))
sketch7.addConstraint(Sketcher.Constraint("Coincident", 6, 2, 7, 1))
sketch7.addConstraint(Sketcher.Constraint("Coincident", 7, 2, 4, 1))
sketch7.addConstraint(Sketcher.Constraint("Vertical", 0))
sketch7.addConstraint(Sketcher.Constraint("Horizontal", 1))
sketch7.addConstraint(Sketcher.Constraint("Vertical", 2))
sketch7.addConstraint(Sketcher.Constraint("Horizontal", 3))
sketch7.addConstraint(Sketcher.Constraint("Vertical", 4))
sketch7.addConstraint(Sketcher.Constraint("Horizontal", 5))
sketch7.addConstraint(Sketcher.Constraint("Vertical", 6))
sketch7.addConstraint(Sketcher.Constraint("Horizontal", 7))
sketch7.addConstraint(Sketcher.Constraint("Horizontal", 1, 2, 4, 2))
sketch7.addConstraint(Sketcher.Constraint("Horizontal", 3, 2, 6, 2))
sketch7.addConstraint(Sketcher.Constraint("Equal", 3, 5))
sketch7.addConstraint(Sketcher.Constraint("DistanceX", 1, 2, 1, 1, Q("2.8 mm")))
sketch7.addConstraint(Sketcher.Constraint("DistanceY", 0, 2, 0, 1, Q("3.2 mm")))
sketch7.addConstraint(Sketcher.Constraint("DistanceY", -1, 1, 2, 2, Q("16 mm")))
sketch7.addConstraint(Sketcher.Constraint("DistanceX", 5, 2, 0, 2, Q("85 mm")))
sketch7.addConstraint(Sketcher.Constraint("DistanceX", -1, 1, 0, 2, Q("34.5 mm")))
pad4 = doc.addObject("PartDesign::Pad", "Pad003")
body.addObject(pad4)
pad4.Profile = sketch7
pad4.Length = 1.4
pad4.Reversed = True

# Sketch on XZ plane
sketch8 = doc.addObject("Sketcher::SketchObject", "Sketch007")
body.addObject(sketch8)
sketch8.AttachmentSupport = (doc.XZ_Plane, [""])
sketch8.MapMode = "FlatFace"
sketch8.AttachmentOffset = App.Placement(V(0, 0, 50.5), App.Rotation())
sketch8.addGeometry(Part.LineSegment(V(-46.8, 16, 0), V(-48.2, 16, 0)), False)
sketch8.addGeometry(Part.LineSegment(V(-48.2, 16, 0), V(-46.8, 14.4, 0)), False)
sketch8.addGeometry(Part.LineSegment(V(-46.8, 14.4, 0), V(-46.8, 16, 0)), False)
sketch8.addGeometry(Part.LineSegment(V(49.2, 16, 0), V(47.8, 16, 0)), False)
sketch8.addGeometry(Part.LineSegment(V(47.8, 16, 0), V(47.8, 14.4, 0)), False)
sketch8.addGeometry(Part.LineSegment(V(47.8, 14.4, 0), V(49.2, 16, 0)), False)
sketch8.addConstraint(Sketcher.Constraint("Coincident", 0, 2, 1, 1))
sketch8.addConstraint(Sketcher.Constraint("Coincident", 1, 2, 2, 1))
sketch8.addConstraint(Sketcher.Constraint("Coincident", 2, 2, 0, 1))
sketch8.addConstraint(Sketcher.Constraint("Coincident", 3, 2, 4, 1))
sketch8.addConstraint(Sketcher.Constraint("Coincident", 4, 2, 5, 1))
sketch8.addConstraint(Sketcher.Constraint("Coincident", 5, 2, 3, 1))
sketch8.addConstraint(Sketcher.Constraint("Horizontal", 0))
sketch8.addConstraint(Sketcher.Constraint("Vertical", 2))
sketch8.addConstraint(Sketcher.Constraint("Horizontal", 3))
sketch8.addConstraint(Sketcher.Constraint("Vertical", 4))
sketch8.addConstraint(Sketcher.Constraint("Horizontal", 2, 2, 3, 2))
sketch8.addConstraint(Sketcher.Constraint("Horizontal", 1, 2, 4, 2))
sketch8.addConstraint(Sketcher.Constraint("Equal", 0, 3))
sketch8.addConstraint(Sketcher.Constraint("DistanceX", 0, 2, 0, 1, Q("1.4 mm")))
sketch8.addConstraint(Sketcher.Constraint("DistanceY", 2, 1, 2, 2, Q("1.6 mm")))
sketch8.addConstraint(Sketcher.Constraint("DistanceY", -1, 1, 0, 2, Q("16 mm")))
sketch8.addConstraint(Sketcher.Constraint("DistanceX", 0, 2, 3, 2, Q("96 mm")))
sketch8.addConstraint(Sketcher.Constraint("DistanceX", 0, 2, -1, 1, Q("48.2 mm")))
pocket4 = doc.addObject("PartDesign::Pocket", "Pocket003")
body.addObject(pocket4)
pocket4.Profile = sketch8
pocket4.Type = "ThroughAll"
doc.recompute()

chamfer = doc.addObject("PartDesign::Chamfer", "Chamfer")
body.addObject(chamfer)
chamfer.Base = (pocket4, edges_at(pocket4, [
    (0.9, 29.1, 23.6),
    (-46.7, 0, 23.6),
    (48.5, 0, 23.6),
    (0.9, -29.1, 23.6),
]))
chamfer.Size = 1.4

doc.recompute()
